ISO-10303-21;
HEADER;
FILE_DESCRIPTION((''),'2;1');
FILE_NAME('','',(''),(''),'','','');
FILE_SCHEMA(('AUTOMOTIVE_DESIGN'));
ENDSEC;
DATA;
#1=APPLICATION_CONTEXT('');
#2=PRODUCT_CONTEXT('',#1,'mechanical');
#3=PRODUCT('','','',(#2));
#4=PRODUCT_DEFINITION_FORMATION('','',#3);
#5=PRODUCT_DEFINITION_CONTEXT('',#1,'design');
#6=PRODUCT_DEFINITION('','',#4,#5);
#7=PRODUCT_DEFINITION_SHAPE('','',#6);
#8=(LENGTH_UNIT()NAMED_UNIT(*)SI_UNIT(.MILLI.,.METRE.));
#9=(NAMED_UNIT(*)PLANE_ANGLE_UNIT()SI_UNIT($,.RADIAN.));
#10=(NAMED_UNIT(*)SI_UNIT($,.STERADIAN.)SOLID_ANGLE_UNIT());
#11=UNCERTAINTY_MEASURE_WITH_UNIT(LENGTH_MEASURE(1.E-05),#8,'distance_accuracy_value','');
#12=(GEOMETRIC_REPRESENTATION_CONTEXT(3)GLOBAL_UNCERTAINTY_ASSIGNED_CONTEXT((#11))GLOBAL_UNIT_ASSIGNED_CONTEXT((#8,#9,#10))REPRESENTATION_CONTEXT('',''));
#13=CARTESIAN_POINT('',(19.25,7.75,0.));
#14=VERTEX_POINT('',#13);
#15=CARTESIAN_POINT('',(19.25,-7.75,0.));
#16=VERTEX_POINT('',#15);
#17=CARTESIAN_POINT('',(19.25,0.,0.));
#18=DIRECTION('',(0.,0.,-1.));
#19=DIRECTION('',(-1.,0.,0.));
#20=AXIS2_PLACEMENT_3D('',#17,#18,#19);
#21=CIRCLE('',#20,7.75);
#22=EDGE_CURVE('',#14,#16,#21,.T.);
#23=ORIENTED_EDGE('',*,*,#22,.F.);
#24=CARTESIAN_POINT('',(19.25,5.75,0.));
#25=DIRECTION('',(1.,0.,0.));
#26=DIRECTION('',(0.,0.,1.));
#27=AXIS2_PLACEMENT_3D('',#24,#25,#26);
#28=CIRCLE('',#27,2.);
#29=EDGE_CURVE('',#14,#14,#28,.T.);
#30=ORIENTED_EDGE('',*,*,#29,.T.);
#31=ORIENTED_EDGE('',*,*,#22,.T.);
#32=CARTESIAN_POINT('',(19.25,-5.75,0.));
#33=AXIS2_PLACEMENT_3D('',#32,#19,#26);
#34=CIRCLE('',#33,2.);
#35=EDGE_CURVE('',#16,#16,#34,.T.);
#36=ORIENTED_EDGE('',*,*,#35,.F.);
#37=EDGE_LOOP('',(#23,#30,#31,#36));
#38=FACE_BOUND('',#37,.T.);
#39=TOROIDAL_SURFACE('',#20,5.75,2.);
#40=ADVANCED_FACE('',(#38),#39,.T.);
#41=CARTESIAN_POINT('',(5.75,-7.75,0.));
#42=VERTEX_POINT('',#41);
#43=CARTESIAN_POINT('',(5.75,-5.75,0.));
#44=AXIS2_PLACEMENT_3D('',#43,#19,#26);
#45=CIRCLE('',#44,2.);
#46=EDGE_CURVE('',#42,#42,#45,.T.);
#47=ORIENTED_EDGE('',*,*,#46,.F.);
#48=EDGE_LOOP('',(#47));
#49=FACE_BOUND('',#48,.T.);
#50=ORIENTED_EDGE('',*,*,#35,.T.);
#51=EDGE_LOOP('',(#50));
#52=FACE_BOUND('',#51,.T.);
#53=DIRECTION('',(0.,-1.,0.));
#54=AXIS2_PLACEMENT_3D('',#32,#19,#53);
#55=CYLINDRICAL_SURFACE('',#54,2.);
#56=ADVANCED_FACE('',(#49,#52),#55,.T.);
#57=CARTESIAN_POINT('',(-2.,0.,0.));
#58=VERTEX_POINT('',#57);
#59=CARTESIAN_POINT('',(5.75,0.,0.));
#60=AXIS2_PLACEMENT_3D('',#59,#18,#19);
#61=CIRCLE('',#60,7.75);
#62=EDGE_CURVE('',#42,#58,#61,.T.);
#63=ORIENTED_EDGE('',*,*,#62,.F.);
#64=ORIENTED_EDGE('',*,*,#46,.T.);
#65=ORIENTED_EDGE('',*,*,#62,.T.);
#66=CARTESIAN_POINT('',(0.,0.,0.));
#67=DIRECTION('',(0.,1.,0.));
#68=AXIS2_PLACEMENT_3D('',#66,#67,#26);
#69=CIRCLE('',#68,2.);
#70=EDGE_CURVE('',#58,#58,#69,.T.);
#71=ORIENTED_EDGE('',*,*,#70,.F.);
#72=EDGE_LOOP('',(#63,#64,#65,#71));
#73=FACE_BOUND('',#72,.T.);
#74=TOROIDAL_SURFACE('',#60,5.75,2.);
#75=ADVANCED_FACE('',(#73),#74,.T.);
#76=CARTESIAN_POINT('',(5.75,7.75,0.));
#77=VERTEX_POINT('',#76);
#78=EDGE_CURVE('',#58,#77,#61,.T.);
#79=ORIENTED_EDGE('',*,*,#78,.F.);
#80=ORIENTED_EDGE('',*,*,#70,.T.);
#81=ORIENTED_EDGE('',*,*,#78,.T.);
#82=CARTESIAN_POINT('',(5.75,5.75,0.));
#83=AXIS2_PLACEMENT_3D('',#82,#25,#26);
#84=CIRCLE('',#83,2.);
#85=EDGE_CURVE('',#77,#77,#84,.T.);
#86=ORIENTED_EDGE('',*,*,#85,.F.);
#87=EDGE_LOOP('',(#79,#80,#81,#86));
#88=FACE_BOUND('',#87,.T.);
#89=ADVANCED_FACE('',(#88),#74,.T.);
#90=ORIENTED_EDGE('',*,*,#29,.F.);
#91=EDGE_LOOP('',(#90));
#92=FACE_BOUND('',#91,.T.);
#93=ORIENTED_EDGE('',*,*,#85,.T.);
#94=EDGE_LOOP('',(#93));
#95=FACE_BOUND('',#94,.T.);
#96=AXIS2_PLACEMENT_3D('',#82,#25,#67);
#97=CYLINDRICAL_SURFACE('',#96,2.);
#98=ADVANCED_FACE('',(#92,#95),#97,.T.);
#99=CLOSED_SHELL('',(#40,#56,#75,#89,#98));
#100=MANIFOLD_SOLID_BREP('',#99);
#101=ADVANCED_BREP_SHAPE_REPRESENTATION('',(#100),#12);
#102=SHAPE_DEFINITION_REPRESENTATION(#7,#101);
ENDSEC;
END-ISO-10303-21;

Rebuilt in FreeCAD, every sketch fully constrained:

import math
import FreeCAD as App
import Part
import Sketcher

doc = App.newDocument("Part")
body = doc.addObject("PartDesign::Body", "Body")

# Sketch on XZ plane
sketch1 = body.newObject("Sketcher::SketchObject", "Sketch")
sketch1.AttachmentSupport = (doc.getObject("XZ_Plane"), [""])
sketch1.MapMode = "FlatFace"
sketch1.addGeometry(Part.Circle(App.Vector(0, 0, 0), App.Vector(0, 0, 1), 2), False)
sketch1.addConstraint([
    Sketcher.Constraint("Coincident", 0, 3, -1, 1),
    Sketcher.Constraint("Diameter", 0, 4.0),
])

# Sketch on XY plane
sketch2 = body.newObject("Sketcher::SketchObject", "Sketch001")
sketch2.AttachmentSupport = (doc.getObject("XY_Plane"), [""])
sketch2.MapMode = "FlatFace"
sketch2.addGeometry([
    Part.LineSegment(App.Vector(19, -6, 0), App.Vector(6, -6, 0)),
    Part.ArcOfCircle(Part.Circle(App.Vector(6, 0, 0), App.Vector(0, 0, 1), 6), math.radians(90), math.radians(270)),
    Part.LineSegment(App.Vector(6, 6, 0), App.Vector(19, 6, 0)),
    Part.ArcOfCircle(Part.Circle(App.Vector(19, 0, 0), App.Vector(0, 0, 1), 6), math.radians(-90), math.radians(90)),
], False)
sketch2.addConstraint([
    Sketcher.Constraint("Tangent", 0, 2, 1, 2),
    Sketcher.Constraint("Tangent", 1, 1, 2, 1),
    Sketcher.Constraint("Tangent", 2, 2, 3, 2),
    Sketcher.Constraint("Tangent", 3, 1, 0, 1),
    Sketcher.Constraint("Horizontal", 0),
    Sketcher.Constraint("Horizontal", 2),
    Sketcher.Constraint("PointOnObject", 1, 3, -1),
    Sketcher.Constraint("Radius", 1, 5.75),
    Sketcher.Constraint("DistanceX", 0, 2, 0, 1, 13.5),
    Sketcher.Constraint("DistanceX", -1, 1, 1, 3, 5.75),
])
doc.recompute()

additivepipe = body.newObject("PartDesign::AdditivePipe", "AdditivePipe")
additivepipe.Profile = sketch1
additivepipe.Spine = (sketch2, ["Edge1", "Edge2", "Edge3", "Edge4"])

doc.recompute()
